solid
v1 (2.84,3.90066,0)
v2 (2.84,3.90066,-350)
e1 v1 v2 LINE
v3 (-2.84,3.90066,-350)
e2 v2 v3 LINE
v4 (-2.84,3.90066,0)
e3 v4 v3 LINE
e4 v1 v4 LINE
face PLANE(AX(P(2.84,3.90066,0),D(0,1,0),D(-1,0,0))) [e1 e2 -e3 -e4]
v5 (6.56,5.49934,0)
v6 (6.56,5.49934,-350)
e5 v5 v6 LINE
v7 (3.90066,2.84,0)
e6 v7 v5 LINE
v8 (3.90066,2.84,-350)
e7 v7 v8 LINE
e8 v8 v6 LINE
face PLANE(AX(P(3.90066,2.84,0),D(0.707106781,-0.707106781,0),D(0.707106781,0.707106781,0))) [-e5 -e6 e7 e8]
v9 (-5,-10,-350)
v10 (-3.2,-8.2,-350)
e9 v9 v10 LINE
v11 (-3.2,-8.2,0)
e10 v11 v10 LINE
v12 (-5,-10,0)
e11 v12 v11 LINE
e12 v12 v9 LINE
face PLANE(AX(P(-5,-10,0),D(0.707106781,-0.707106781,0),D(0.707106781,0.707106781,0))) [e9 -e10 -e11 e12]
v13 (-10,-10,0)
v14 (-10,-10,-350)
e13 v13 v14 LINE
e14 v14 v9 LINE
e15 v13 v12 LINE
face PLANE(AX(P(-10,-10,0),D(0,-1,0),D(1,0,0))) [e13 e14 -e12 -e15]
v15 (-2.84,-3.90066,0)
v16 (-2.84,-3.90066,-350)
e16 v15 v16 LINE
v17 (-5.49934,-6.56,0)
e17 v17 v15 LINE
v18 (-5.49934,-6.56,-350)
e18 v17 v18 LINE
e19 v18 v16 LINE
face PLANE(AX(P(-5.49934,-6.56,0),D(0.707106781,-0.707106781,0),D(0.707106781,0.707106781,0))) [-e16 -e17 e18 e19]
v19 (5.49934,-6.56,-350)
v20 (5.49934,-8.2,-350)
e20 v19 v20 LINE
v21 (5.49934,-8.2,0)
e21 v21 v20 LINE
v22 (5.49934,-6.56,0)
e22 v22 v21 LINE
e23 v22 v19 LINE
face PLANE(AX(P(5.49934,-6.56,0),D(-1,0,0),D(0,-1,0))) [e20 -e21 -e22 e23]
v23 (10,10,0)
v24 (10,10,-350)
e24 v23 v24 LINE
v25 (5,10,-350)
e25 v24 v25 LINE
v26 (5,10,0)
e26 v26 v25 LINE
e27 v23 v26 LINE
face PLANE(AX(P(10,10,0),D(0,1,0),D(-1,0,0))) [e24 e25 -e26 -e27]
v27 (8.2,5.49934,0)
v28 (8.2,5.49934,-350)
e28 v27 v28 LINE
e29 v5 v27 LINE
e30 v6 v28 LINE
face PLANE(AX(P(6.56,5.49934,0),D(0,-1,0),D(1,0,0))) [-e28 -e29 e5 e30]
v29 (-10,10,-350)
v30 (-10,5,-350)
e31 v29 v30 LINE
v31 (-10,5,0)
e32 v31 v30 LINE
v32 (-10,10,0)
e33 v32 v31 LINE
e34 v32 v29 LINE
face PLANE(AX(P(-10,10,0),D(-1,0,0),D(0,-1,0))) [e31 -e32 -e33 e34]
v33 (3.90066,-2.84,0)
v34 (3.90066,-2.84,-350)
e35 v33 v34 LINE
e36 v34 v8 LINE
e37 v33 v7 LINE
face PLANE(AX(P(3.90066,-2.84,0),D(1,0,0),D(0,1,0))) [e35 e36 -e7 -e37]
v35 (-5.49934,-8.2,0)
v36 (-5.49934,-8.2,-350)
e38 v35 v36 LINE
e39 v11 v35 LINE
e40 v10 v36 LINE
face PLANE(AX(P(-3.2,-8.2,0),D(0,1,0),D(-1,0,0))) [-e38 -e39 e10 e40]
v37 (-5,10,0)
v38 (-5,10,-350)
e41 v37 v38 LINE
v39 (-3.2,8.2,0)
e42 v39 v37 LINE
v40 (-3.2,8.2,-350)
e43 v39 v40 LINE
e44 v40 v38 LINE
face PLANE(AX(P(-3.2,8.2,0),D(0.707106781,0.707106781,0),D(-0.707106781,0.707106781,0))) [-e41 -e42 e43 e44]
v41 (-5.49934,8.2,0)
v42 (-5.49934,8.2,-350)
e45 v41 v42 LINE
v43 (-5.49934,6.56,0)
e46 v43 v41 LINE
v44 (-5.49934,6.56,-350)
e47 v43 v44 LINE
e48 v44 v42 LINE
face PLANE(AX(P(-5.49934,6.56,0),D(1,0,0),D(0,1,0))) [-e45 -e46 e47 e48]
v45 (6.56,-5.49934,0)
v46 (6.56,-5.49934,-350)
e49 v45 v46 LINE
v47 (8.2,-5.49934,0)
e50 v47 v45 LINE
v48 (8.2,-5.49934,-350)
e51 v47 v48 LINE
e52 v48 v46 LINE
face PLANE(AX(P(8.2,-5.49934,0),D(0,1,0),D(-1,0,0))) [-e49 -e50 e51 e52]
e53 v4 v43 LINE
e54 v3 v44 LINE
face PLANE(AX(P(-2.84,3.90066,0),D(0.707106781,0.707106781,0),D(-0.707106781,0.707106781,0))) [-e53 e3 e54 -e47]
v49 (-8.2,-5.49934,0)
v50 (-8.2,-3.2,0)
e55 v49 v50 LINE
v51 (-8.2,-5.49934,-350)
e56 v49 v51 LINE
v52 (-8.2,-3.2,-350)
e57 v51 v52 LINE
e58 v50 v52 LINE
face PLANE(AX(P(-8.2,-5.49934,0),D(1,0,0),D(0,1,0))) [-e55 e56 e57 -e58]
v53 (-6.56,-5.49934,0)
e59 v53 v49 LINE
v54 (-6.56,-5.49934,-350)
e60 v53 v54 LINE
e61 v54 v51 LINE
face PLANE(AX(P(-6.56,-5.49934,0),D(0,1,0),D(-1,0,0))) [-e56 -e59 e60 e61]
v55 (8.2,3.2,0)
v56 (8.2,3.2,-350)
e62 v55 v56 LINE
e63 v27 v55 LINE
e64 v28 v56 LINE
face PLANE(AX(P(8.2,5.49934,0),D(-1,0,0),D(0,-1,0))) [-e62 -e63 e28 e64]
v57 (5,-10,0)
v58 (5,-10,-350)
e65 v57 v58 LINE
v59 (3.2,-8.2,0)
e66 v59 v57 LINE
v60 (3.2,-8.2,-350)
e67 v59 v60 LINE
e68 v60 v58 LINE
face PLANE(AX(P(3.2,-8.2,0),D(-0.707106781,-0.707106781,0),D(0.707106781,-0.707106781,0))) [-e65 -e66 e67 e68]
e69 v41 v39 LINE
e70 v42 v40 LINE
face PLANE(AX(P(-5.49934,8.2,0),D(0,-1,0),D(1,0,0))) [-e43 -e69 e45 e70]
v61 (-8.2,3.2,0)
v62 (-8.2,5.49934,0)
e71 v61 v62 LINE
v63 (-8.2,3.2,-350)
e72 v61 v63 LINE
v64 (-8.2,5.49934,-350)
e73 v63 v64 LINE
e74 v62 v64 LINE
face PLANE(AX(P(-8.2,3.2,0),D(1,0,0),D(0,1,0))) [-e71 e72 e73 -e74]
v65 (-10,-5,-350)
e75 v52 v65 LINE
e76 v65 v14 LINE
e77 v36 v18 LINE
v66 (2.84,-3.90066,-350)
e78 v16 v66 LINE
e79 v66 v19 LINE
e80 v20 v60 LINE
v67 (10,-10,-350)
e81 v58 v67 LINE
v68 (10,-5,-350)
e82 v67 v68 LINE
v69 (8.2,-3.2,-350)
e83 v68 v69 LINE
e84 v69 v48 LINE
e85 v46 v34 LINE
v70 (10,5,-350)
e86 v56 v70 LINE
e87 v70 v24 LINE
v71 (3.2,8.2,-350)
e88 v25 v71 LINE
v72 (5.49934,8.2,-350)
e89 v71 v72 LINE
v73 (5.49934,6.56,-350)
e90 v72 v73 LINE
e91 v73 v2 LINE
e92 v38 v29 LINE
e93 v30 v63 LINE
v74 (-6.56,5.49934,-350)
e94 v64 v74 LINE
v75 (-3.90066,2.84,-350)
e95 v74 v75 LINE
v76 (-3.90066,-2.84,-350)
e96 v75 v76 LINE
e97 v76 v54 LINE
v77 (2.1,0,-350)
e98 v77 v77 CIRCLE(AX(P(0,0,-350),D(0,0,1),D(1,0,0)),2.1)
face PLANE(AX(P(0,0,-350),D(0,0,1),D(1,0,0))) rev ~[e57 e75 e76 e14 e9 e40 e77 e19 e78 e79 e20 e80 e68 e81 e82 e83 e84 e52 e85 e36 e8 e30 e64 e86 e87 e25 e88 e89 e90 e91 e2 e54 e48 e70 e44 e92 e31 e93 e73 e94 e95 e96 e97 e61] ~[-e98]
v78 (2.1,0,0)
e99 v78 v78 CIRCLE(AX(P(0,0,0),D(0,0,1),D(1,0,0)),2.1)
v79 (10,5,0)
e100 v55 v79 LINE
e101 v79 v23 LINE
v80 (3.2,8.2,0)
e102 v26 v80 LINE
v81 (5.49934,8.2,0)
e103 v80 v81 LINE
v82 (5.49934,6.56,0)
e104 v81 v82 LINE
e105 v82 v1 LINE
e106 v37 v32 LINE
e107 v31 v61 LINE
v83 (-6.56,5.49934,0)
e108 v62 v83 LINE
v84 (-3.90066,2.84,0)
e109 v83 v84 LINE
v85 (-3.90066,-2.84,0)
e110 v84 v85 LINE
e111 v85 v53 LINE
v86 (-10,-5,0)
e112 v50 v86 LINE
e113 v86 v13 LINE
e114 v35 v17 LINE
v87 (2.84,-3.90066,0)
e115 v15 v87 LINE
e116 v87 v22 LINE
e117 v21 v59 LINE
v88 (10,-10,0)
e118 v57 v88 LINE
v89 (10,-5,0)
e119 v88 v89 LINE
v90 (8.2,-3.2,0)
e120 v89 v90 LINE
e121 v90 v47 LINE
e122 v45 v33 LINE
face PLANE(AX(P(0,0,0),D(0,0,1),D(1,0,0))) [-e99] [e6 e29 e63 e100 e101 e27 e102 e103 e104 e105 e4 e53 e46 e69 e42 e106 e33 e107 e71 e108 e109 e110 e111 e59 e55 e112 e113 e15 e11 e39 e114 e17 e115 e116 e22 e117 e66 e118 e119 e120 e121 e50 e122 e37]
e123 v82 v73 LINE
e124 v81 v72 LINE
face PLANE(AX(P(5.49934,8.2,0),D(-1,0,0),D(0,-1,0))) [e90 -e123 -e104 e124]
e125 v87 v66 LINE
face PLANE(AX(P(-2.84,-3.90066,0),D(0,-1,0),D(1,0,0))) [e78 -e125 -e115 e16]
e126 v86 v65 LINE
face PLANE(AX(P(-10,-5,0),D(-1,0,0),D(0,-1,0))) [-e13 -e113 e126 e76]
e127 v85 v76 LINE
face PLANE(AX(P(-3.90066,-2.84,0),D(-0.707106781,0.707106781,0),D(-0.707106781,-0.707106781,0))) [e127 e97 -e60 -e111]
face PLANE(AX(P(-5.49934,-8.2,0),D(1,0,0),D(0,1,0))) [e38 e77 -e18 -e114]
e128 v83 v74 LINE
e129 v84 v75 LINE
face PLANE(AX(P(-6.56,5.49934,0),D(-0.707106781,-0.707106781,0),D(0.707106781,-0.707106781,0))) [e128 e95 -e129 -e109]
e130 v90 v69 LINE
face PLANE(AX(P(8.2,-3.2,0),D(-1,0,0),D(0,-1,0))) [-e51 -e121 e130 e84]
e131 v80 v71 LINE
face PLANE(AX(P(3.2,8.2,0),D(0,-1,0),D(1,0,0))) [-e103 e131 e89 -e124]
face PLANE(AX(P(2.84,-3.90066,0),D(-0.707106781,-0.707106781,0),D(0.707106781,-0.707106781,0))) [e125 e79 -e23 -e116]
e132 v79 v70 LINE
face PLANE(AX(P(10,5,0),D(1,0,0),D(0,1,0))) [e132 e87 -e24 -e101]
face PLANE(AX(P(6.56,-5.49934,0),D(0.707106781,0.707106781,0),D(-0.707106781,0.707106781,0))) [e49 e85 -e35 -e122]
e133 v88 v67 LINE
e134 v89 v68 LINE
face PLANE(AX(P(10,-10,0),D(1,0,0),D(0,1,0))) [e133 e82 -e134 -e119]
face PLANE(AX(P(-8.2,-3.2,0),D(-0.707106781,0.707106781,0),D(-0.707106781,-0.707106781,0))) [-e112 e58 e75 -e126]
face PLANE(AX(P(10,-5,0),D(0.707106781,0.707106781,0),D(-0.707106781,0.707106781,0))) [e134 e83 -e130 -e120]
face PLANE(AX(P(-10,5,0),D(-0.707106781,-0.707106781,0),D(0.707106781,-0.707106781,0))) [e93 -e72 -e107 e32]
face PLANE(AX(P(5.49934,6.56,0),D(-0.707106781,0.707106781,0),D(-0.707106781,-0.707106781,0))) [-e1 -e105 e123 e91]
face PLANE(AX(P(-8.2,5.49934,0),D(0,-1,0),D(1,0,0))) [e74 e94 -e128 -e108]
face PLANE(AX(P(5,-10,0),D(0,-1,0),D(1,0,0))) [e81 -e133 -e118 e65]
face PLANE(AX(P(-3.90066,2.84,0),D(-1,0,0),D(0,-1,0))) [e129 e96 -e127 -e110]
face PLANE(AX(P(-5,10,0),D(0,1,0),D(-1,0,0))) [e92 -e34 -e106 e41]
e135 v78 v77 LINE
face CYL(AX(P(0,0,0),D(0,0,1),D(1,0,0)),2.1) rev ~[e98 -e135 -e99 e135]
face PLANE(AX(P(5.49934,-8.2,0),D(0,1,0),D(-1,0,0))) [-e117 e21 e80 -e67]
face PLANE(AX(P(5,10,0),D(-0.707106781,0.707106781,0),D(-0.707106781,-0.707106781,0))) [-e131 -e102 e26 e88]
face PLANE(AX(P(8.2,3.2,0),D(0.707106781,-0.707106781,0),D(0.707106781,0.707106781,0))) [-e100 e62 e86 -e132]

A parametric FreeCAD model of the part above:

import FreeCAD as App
import Part
import Sketcher

V = App.Vector
Q = App.Units.Quantity

doc = App.newDocument("Part")
body = doc.addObject("PartDesign::Body", "Body")

# Sketch on XY plane
sketch1 = doc.addObject("Sketcher::SketchObject", "Sketch")
body.addObject(sketch1)
sketch1.AttachmentSupport = (doc.XY_Plane, [""])
sketch1.MapMode = "FlatFace"
sketch1.addGeometry(Part.LineSegment(V(-10, 10, 0), V(-10, 5, 0)), False)
sketch1.addGeometry(Part.LineSegment(V(-10, 5, 0), V(-8.2, 3.2, 0)), False)
sketch1.addGeometry(Part.LineSegment(V(-8.2, 3.2, 0), V(-8.2, 5.49934, 0)), False)
sketch1.addGeometry(Part.LineSegment(V(-8.2, 5.49934, 0), V(-6.56, 5.49934, 0)), False)
sketch1.addGeometry(Part.LineSegment(V(-6.56, 5.49934, 0), V(-3.90066, 2.84, 0)), False)
sketch1.addGeometry(Part.LineSegment(V(-3.90066, 2.84, 0), V(-3.90066, -2.84, 0)), False)
sketch1.addGeometry(Part.LineSegment(V(-3.90066, -2.84, 0), V(-6.56, -5.49934, 0)), False)
sketch1.addGeometry(Part.LineSegment(V(-6.56, -5.49934, 0), V(-8.2, -5.49934, 0)), False)
sketch1.addGeometry(Part.LineSegment(V(-8.2, -5.49934, 0), V(-8.2, -3.2, 0)), False)
sketch1.addGeometry(Part.LineSegment(V(-8.2, -3.2, 0), V(-10, -5, 0)), False)
sketch1.addGeometry(Part.LineSegment(V(-10, -5, 0), V(-10, -10, 0)), False)
sketch1.addGeometry(Part.LineSegment(V(-10, -10, 0), V(-5, -10, 0)), False)
sketch1.addGeometry(Part.LineSegment(V(-5, -10, 0), V(-3.2, -8.2, 0)), False)
sketch1.addGeometry(Part.LineSegment(V(-3.2, -8.2, 0), V(-5.49934, -8.2, 0)), False)
sketch1.addGeometry(Part.LineSegment(V(-5.49934, -8.2, 0), V(-5.49934, -6.56, 0)), False)
sketch1.addGeometry(Part.LineSegment(V(-5.49934, -6.56, 0), V(-2.84, -3.90066, 0)), False)
sketch1.addGeometry(Part.LineSegment(V(-2.84, -3.90066, 0), V(2.84, -3.90066, 0)), False)
sketch1.addGeometry(Part.LineSegment(V(2.84, -3.90066, 0), V(5.49934, -6.56, 0)), False)
sketch1.addGeometry(Part.LineSegment(V(5.49934, -6.56, 0), V(5.49934, -8.2, 0)), False)
sketch1.addGeometry(Part.LineSegment(V(5.49934, -8.2, 0), V(3.2, -8.2, 0)), False)
sketch1.addGeometry(Part.LineSegment(V(3.2, -8.2, 0), V(5, -10, 0)), False)
sketch1.addGeometry(Part.LineSegment(V(5, -10, 0), V(10, -10, 0)), False)
sketch1.addGeometry(Part.LineSegment(V(10, -10, 0), V(10, -5, 0)), False)
sketch1.addGeometry(Part.LineSegment(V(10, -5, 0), V(8.2, -3.2, 0)), False)
sketch1.addGeometry(Part.LineSegment(V(8.2, -3.2, 0), V(8.2, -5.49934, 0)), False)
sketch1.addGeometry(Part.LineSegment(V(8.2, -5.49934, 0), V(6.56, -5.49934, 0)), False)
sketch1.addGeometry(Part.LineSegment(V(6.56, -5.49934, 0), V(3.90066, -2.84, 0)), False)
sketch1.addGeometry(Part.LineSegment(V(3.90066, -2.84, 0), V(3.90066, 2.84, 0)), False)
sketch1.addGeometry(Part.LineSegment(V(3.90066, 2.84, 0), V(6.56, 5.49934, 0)), False)
sketch1.addGeometry(Part.LineSegment(V(6.56, 5.49934, 0), V(8.2, 5.49934, 0)), False)
sketch1.addGeometry(Part.LineSegment(V(8.2, 5.49934, 0), V(8.2, 3.2, 0)), False)
sketch1.addGeometry(Part.LineSegment(V(8.2, 3.2, 0), V(10, 5, 0)), False)
sketch1.addGeometry(Part.LineSegment(V(10, 5, 0), V(10, 10, 0)), False)
sketch1.addGeometry(Part.LineSegment(V(10, 10, 0), V(5, 10, 0)), False)
sketch1.addGeometry(Part.LineSegment(V(5, 10, 0), V(3.2, 8.2, 0)), False)
sketch1.addGeometry(Part.LineSegment(V(3.2, 8.2, 0), V(5.49934, 8.2, 0)), False)
sketch1.addGeometry(Part.LineSegment(V(5.49934, 8.2, 0), V(5.49934, 6.56, 0)), False)
sketch1.addGeometry(Part.LineSegment(V(5.49934, 6.56, 0), V(2.84, 3.90066, 0)), False)
sketch1.addGeometry(Part.LineSegment(V(2.84, 3.90066, 0), V(-2.84, 3.90066, 0)), False)
sketch1.addGeometry(Part.LineSegment(V(-2.84, 3.90066, 0), V(-5.49934, 6.56, 0)), False)
sketch1.addGeometry(Part.LineSegment(V(-5.49934, 6.56, 0), V(-5.49934, 8.2, 0)), False)
sketch1.addGeometry(Part.LineSegment(V(-5.49934, 8.2, 0), V(-3.2, 8.2, 0)), False)
sketch1.addGeometry(Part.LineSegment(V(-3.2, 8.2, 0), V(-5, 10, 0)), False)
sketch1.addGeometry(Part.LineSegment(V(-5, 10, 0), V(-10, 10, 0)), False)
sketch1.addGeometry(Part.Circle(V(0, 0, 0), V(0, 0, 1), 2.1), False)
sketch1.addConstraint(Sketcher.Constraint("Coincident", 0, 2, 1, 1))
sketch1.addConstraint(Sketcher.Constraint("Coincident", 1, 2, 2, 1))
sketch1.addConstraint(Sketcher.Constraint("Coincident", 2, 2, 3, 1))
sketch1.addConstraint(Sketcher.Constraint("Coincident", 3, 2, 4, 1))
sketch1.addConstraint(Sketcher.Constraint("Coincident", 4, 2, 5, 1))
sketch1.addConstraint(Sketcher.Constraint("Coincident", 5, 2, 6, 1))
sketch1.addConstraint(Sketcher.Constraint("Coincident", 6, 2, 7, 1))
sketch1.addConstraint(Sketcher.Constraint("Coincident", 7, 2, 8, 1))
sketch1.addConstraint(Sketcher.Constraint("Coincident", 8, 2, 9, 1))
sketch1.addConstraint(Sketcher.Constraint("Coincident", 9, 2, 10, 1))
sketch1.addConstraint(Sketcher.Constraint("Coincident", 10, 2, 11, 1))
sketch1.addConstraint(Sketcher.Constraint("Coincident", 11, 2, 12, 1))
sketch1.addConstraint(Sketcher.Constraint("Coincident", 12, 2, 13, 1))
sketch1.addConstraint(Sketcher.Constraint("Coincident", 13, 2, 14, 1))
sketch1.addConstraint(Sketcher.Constraint("Coincident", 14, 2, 15, 1))
sketch1.addConstraint(Sketcher.Constraint("Coincident", 15, 2, 16, 1))
sketch1.addConstraint(Sketcher.Constraint("Coincident", 16, 2, 17, 1))
sketch1.addConstraint(Sketcher.Constraint("Coincident", 17, 2, 18, 1))
sketch1.addConstraint(Sketcher.Constraint("Coincident", 18, 2, 19, 1))
sketch1.addConstraint(Sketcher.Constraint("Coincident", 19, 2, 20, 1))
sketch1.addConstraint(Sketcher.Constraint("Coincident", 20, 2, 21, 1))
sketch1.addConstraint(Sketcher.Constraint("Coincident", 21, 2, 22, 1))
sketch1.addConstraint(Sketcher.Constraint("Coincident", 22, 2, 23, 1))
sketch1.addConstraint(Sketcher.Constraint("Coincident", 23, 2, 24, 1))
sketch1.addConstraint(Sketcher.Constraint("Coincident", 24, 2, 25, 1))
sketch1.addConstraint(Sketcher.Constraint("Coincident", 25, 2, 26, 1))
sketch1.addConstraint(Sketcher.Constraint("Coincident", 26, 2, 27, 1))
sketch1.addConstraint(Sketcher.Constraint("Coincident", 27, 2, 28, 1))
sketch1.addConstraint(Sketcher.Constraint("Coincident", 28, 2, 29, 1))
sketch1.addConstraint(Sketcher.Constraint("Coincident", 29, 2, 30, 1))
sketch1.addConstraint(Sketcher.Constraint("Coincident", 30, 2, 31, 1))
sketch1.addConstraint(Sketcher.Constraint("Coincident", 31, 2, 32, 1))
sketch1.addConstraint(Sketcher.Constraint("Coincident", 32, 2, 33, 1))
sketch1.addConstraint(Sketcher.Constraint("Coincident", 33, 2, 34, 1))
sketch1.addConstraint(Sketcher.Constraint("Coincident", 34, 2, 35, 1))
sketch1.addConstraint(Sketcher.Constraint("Coincident", 35, 2, 36, 1))
sketch1.addConstraint(Sketcher.Constraint("Coincident", 36, 2, 37, 1))
sketch1.addConstraint(Sketcher.Constraint("Coincident", 37, 2, 38, 1))
sketch1.addConstraint(Sketcher.Constraint("Coincident", 38, 2, 39, 1))
sketch1.addConstraint(Sketcher.Constraint("Coincident", 39, 2, 40, 1))
sketch1.addConstraint(Sketcher.Constraint("Coincident", 40, 2, 41, 1))
sketch1.addConstraint(Sketcher.Constraint("Coincident", 41, 2, 42, 1))
sketch1.addConstraint(Sketcher.Constraint("Coincident", 42, 2, 43, 1))
sketch1.addConstraint(Sketcher.Constraint("Coincident", 43, 2, 0, 1))
sketch1.addConstraint(Sketcher.Constraint("Vertical", 0))
sketch1.addConstraint(Sketcher.Constraint("Vertical", 2))
sketch1.addConstraint(Sketcher.Constraint("Horizontal", 3))
sketch1.addConstraint(Sketcher.Constraint("Vertical", 5))
sketch1.addConstraint(Sketcher.Constraint("Horizontal", 7))
sketch1.addConstraint(Sketcher.Constraint("Vertical", 8))
sketch1.addConstraint(Sketcher.Constraint("Vertical", 10))
sketch1.addConstraint(Sketcher.Constraint("Horizontal", 11))
sketch1.addConstraint(Sketcher.Constraint("Horizontal", 13))
sketch1.addConstraint(Sketcher.Constraint("Vertical", 14))
sketch1.addConstraint(Sketcher.Constraint("Horizontal", 16))
sketch1.addConstraint(Sketcher.Constraint("Vertical", 18))
sketch1.addConstraint(Sketcher.Constraint("Horizontal", 19))
sketch1.addConstraint(Sketcher.Constraint("Horizontal", 21))
sketch1.addConstraint(Sketcher.Constraint("Vertical", 22))
sketch1.addConstraint(Sketcher.Constraint("Vertical", 24))
sketch1.addConstraint(Sketcher.Constraint("Horizontal", 25))
sketch1.addConstraint(Sketcher.Constraint("Vertical", 27))
sketch1.addConstraint(Sketcher.Constraint("Horizontal", 29))
sketch1.addConstraint(Sketcher.Constraint("Vertical", 30))
sketch1.addConstraint(Sketcher.Constraint("Vertical", 32))
sketch1.addConstraint(Sketcher.Constraint("Horizontal", 33))
sketch1.addConstraint(Sketcher.Constraint("Horizontal", 35))
sketch1.addConstraint(Sketcher.Constraint("Vertical", 36))
sketch1.addConstraint(Sketcher.Constraint("Horizontal", 38))
sketch1.addConstraint(Sketcher.Constraint("Vertical", 40))
sketch1.addConstraint(Sketcher.Constraint("Horizontal", 41))
sketch1.addConstraint(Sketcher.Constraint("Horizontal", 43))
sketch1.addConstraint(Sketcher.Constraint("Coincident", 44, 3, -1, 1))
sketch1.addConstraint(Sketcher.Constraint("Symmetric", 0, 2, 22, 2, -1, 1))
sketch1.addConstraint(Sketcher.Constraint("Symmetric", 1, 2, 23, 2, -1, 1))
sketch1.addConstraint(Sketcher.Constraint("Symmetric", 3, 2, 25, 2, -1, 1))
sketch1.addConstraint(Sketcher.Constraint("Symmetric", 4, 2, 26, 2, -1, 1))
sketch1.addConstraint(Sketcher.Constraint("Symmetric", 6, 2, 28, 2, -1, 1))
sketch1.addConstraint(Sketcher.Constraint("Symmetric", 8, 2, 30, 2, -1, 1))
sketch1.addConstraint(Sketcher.Constraint("Symmetric", 9, 2, 31, 2, -1, 1))
sketch1.addConstraint(Sketcher.Constraint("Symmetric", 11, 2, 33, 2, -1, 1))
sketch1.addConstraint(Sketcher.Constraint("Symmetric", 12, 2, 34, 2, -1, 1))
sketch1.addConstraint(Sketcher.Constraint("Symmetric", 14, 2, 36, 2, -1, 1))
sketch1.addConstraint(Sketcher.Constraint("Symmetric", 15, 2, 37, 2, -1, 1))
sketch1.addConstraint(Sketcher.Constraint("Symmetric", 17, 2, 39, 2, -1, 1))
sketch1.addConstraint(Sketcher.Constraint("Symmetric", 19, 2, 41, 2, -1, 1))
sketch1.addConstraint(Sketcher.Constraint("Symmetric", 20, 2, 42, 2, -1, 1))
sketch1.addConstraint(Sketcher.Constraint("Symmetric", 14, 2, 17, 2, -2))
sketch1.addConstraint(Sketcher.Constraint("Symmetric", 12, 2, 19, 2, -2))
sketch1.addConstraint(Sketcher.Constraint("Symmetric", 11, 2, 20, 2, -2))
sketch1.addConstraint(Sketcher.Constraint("Symmetric", 9, 2, 22, 2, -2))
sketch1.addConstraint(Sketcher.Constraint("Symmetric", 8, 2, 23, 2, -2))
sketch1.addConstraint(Sketcher.Constraint("Symmetric", 6, 2, 25, 2, -2))
sketch1.addConstraint(Sketcher.Constraint("Parallel", 1, 4))
sketch1.addConstraint(Sketcher.Constraint("Perpendicular", 4, 6))
sketch1.addConstraint(Sketcher.Constraint("Parallel", 6, 9))
sketch1.addConstraint(Sketcher.Constraint("Parallel", 9, 12))
sketch1.addConstraint(Sketcher.Constraint("Parallel", 12, 15))
sketch1.addConstraint(Sketcher.Constraint("Perpendicular", 15, 17))
sketch1.addConstraint(Sketcher.Constraint("Perpendicular", 26, 28))
sketch1.addConstraint(Sketcher.Constraint("Perpendicular", 37, 39))
sketch1.addConstraint(Sketcher.Constraint("Equal", 43, 0))
sketch1.addConstraint(Sketcher.Constraint("Equal", 41, 2))
sketch1.addConstraint(Sketcher.Constraint("Equal", 38, 5))
sketch1.addConstraint(Sketcher.Constraint("Equal", 29, 14))
sketch1.addConstraint(Sketcher.Constraint("Equal", 9, 12))
sketch1.addConstraint(Sketcher.Constraint("Equal", 6, 15))
sketch1.addConstraint(Sketcher.Constraint("Diameter", 44, Q("4.2 mm")))
sketch1.addConstraint(Sketcher.Constraint("DistanceX", 11, 1, 11, 2, Q("5 mm")))
sketch1.addConstraint(Sketcher.Constraint("DistanceX", 0, 2, -1, 1, Q("10 mm")))
sketch1.addConstraint(Sketcher.Constraint("DistanceX", 3, 1, 3, 2, Q("1.64 mm")))
sketch1.addConstraint(Sketcher.Constraint("DistanceX", 16, 1, 16, 2, Q("5.68 mm")))
sketch1.addConstraint(Sketcher.Constraint("DistanceX", 1, 2, -1, 1, Q("8.2 mm")))
sketch1.addConstraint(Sketcher.Constraint("DistanceX", 13, 2, 13, 1, Q("2.29934 mm")))
pad1 = doc.addObject("PartDesign::Pad", "Pad")
body.addObject(pad1)
pad1.Profile = sketch1
pad1.Length = 350
pad1.Reversed = True

doc.recompute()
